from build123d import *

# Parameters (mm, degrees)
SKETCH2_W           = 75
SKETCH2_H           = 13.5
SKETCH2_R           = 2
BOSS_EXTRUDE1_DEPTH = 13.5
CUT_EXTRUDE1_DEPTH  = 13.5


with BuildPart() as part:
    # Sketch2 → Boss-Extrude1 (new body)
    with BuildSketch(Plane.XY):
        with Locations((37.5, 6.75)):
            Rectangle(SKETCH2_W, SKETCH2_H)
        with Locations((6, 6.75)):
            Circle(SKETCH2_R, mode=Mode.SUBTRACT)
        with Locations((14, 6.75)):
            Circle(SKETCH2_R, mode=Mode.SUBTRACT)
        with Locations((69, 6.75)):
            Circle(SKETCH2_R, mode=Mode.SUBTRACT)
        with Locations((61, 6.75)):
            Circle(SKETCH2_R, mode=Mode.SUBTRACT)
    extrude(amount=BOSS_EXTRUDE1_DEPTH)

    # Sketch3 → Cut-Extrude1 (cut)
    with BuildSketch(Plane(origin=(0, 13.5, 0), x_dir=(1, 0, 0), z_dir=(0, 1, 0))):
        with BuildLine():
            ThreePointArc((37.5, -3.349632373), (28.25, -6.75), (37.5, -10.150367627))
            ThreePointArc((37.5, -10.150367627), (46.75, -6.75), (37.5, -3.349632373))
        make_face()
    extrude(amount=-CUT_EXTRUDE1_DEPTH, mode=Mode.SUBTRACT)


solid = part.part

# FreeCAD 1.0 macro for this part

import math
import FreeCAD as App
import Part
import Sketcher

doc = App.newDocument("Part")
body = doc.addObject("PartDesign::Body", "Body")

# Sketch on XY plane
sketch1 = body.newObject("Sketcher::SketchObject", "Sketch")
sketch1.AttachmentSupport = (doc.getObject("XY_Plane"), [""])
sketch1.MapMode = "FlatFace"
sketch1.addGeometry([
    Part.LineSegment(App.Vector(0, 13.5, 0), App.Vector(0, 0, 0)),  # 0
    Part.LineSegment(App.Vector(0, 0, 0), App.Vector(75, 0, 0)),  # 1
    Part.LineSegment(App.Vector(75, 0, 0), App.Vector(75, 13.5, 0)),  # 2
    Part.LineSegment(App.Vector(75, 13.5, 0), App.Vector(0, 13.5, 0)),  # 3
    Part.Circle(App.Vector(6, 6.8, 0), App.Vector(0, 0, 1), 2),  # 4
    Part.Circle(App.Vector(14, 6.8, 0), App.Vector(0, 0, 1), 2),  # 5
    Part.Circle(App.Vector(61, 6.8, 0), App.Vector(0, 0, 1), 2),  # 6
    Part.Circle(App.Vector(69, 6.8, 0), App.Vector(0, 0, 1), 2),  # 7
], False)
sketch1.addConstraint([
    Sketcher.Constraint("Coincident", 0, 2, 1, 1),
    Sketcher.Constraint("Coincident", 1, 2, 2, 1),
    Sketcher.Constraint("Coincident", 2, 2, 3, 1),
    Sketcher.Constraint("Coincident", 3, 2, 0, 1),
    Sketcher.Constraint("Vertical", 0),
    Sketcher.Constraint("Horizontal", 1),
    Sketcher.Constraint("Vertical", 2),
    Sketcher.Constraint("Horizontal", 3),
    Sketcher.Constraint("Coincident", 0, 2, -1, 1),
    Sketcher.Constraint("Equal", 4, 5),
    Sketcher.Constraint("Equal", 5, 6),
    Sketcher.Constraint("Equal", 6, 7),
    Sketcher.Constraint("Horizontal", 4, 3, 5, 3),
    Sketcher.Constraint("Horizontal", 5, 3, 6, 3),
    Sketcher.Constraint("Horizontal", 6, 3, 7, 3),
    Sketcher.Constraint("Diameter", 4, 4.0),
    Sketcher.Constraint("DistanceX", 1, 1, 1, 2, 75.0),
    Sketcher.Constraint("DistanceY", 0, 2, 0, 1, 13.5),
    Sketcher.Constraint("DistanceX", -1, 1, 4, 3, 6.0),
    Sketcher.Constraint("DistanceX", -1, 1, 5, 3, 14.0),
    Sketcher.Constraint("DistanceX", -1, 1, 6, 3, 61.0),
    Sketcher.Constraint("DistanceX", -1, 1, 7, 3, 69.0),
    Sketcher.Constraint("DistanceY", -1, 1, 4, 3, 6.75),
])
pad1 = body.newObject("PartDesign::Pad", "Pad")
pad1.Profile = sketch1
pad1.Length = 13.5

# Sketch on XZ plane
sketch2 = body.newObject("Sketcher::SketchObject", "Sketch001")
sketch2.AttachmentSupport = (doc.getObject("XZ_Plane"), [""])
sketch2.MapMode = "FlatFace"
sketch2.AttachmentOffset = App.Placement(App.Vector(0, 0, -13.5), App.Rotation())
sketch2.addGeometry([
    Part.ArcOfCircle(Part.Circle(App.Vector(34, 7, 0), App.Vector(0, 0, 1), 5), math.radians(40), math.radians(320)),
    Part.ArcOfCircle(Part.Circle(App.Vector(42, 7, 0), App.Vector(0, 0, 1), 5), math.radians(-140), math.radians(140)),
], False)
sketch2.addConstraint([
    Sketcher.Constraint("Coincident", 0, 1, 1, 2),
    Sketcher.Constraint("Coincident", 1, 1, 0, 2),
    Sketcher.Constraint("Equal", 0, 1),
    Sketcher.Constraint("Horizontal", 0, 3, 1, 3),
    Sketcher.Constraint("Radius", 0, 5.25),
    Sketcher.Constraint("DistanceX", 0, 3, 1, 3, 8.0),
    Sketcher.Constraint("DistanceX", -1, 1, 0, 3, 33.5),
    Sketcher.Constraint("DistanceY", -1, 1, 0, 3, 6.75),
])
pocket1 = body.newObject("PartDesign::Pocket", "Pocket")
pocket1.Profile = sketch2
pocket1.Length = 13.5
pocket1.Reversed = True

doc.recompute()
